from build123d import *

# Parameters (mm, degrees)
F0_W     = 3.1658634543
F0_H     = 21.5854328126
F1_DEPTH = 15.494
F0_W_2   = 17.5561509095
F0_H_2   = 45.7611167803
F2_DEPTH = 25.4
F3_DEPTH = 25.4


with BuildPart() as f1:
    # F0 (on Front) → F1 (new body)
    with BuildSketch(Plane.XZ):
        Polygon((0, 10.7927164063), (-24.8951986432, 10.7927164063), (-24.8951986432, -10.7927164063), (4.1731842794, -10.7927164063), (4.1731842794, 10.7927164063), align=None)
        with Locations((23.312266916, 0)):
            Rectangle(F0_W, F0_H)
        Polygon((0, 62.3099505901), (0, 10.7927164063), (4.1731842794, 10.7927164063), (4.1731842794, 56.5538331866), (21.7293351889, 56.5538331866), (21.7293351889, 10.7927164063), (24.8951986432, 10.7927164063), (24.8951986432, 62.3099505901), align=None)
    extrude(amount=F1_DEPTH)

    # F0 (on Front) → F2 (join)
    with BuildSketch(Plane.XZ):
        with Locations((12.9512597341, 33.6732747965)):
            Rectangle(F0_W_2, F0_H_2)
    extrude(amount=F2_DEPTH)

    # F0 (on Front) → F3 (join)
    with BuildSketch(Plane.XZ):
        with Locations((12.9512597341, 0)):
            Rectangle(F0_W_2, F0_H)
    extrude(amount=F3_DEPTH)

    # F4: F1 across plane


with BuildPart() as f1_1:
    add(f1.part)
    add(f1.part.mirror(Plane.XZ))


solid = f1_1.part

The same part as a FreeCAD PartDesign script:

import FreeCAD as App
import Part
import Sketcher
from FreeCAD import Vector
Q = App.Units.Quantity


def add_polygon(sketch, points):
    """Adds a closed chain of lines whose ends are joined by coincident constraints."""
    first, n = sketch.GeometryCount, len(points)
    for a, b in zip(points, points[1:] + points[:1]):
        sketch.addGeometry(Part.LineSegment(App.Vector(*a, 0), App.Vector(*b, 0)), False)
    for i in range(n):
        sketch.addConstraint(Sketcher.Constraint("Coincident", first + i, 2, first + (i + 1) % n, 1))

doc = App.newDocument("Part")
body = doc.addObject("PartDesign::Body", "Body")

sketch1 = body.newObject("Sketcher::SketchObject", "Sketch")
sketch1.AttachmentSupport = (doc.getObject("XZ_Plane"), [""])
sketch1.MapMode = "FlatFace"
add_polygon(sketch1, [(-24.9, 10.8), (-24.9, -10.8), (4.2, -10.8), (4.2, 56.6), (21.7, 56.6), (21.7, -10.8), (24.9, -10.8), (24.9, 62.3), (0, 62.3), (0, 10.8)])
sketch1.addConstraint([
    Sketcher.Constraint("Vertical", 0),
    Sketcher.Constraint("Horizontal", 1),
    Sketcher.Constraint("Vertical", 2),
    Sketcher.Constraint("Horizontal", 3),
    Sketcher.Constraint("Vertical", 4),
    Sketcher.Constraint("Horizontal", 5),
    Sketcher.Constraint("Vertical", 6),
    Sketcher.Constraint("Horizontal", 7),
    Sketcher.Constraint("Vertical", 8),
    Sketcher.Constraint("Horizontal", 9),
    Sketcher.Constraint("Symmetric", 5, 2, 9, 2, -1, 1),
    Sketcher.Constraint("PointOnObject", 7, 2, -2),
    Sketcher.Constraint("Horizontal", 1, 2, 4, 2),
    Sketcher.Constraint("DistanceX", 7, 2, 7, 1, 24.895199),
    Sketcher.Constraint("DistanceX", 3, 1, 3, 2, 17.556151),
    Sketcher.Constraint("DistanceY", 2, 1, 2, 2, 67.34655),
    Sketcher.Constraint("DistanceX", 1, 1, 1, 2, 29.068383),
    Sketcher.Constraint("DistanceY", 0, 2, 0, 1, 21.585433),
    Sketcher.Constraint("DistanceY", 6, 1, 6, 2, 73.102667),
])
pad1 = body.newObject("PartDesign::Pad", "Pad")
pad1.Profile = sketch1
pad1.Length = Q("0.61 in")

sketch2 = body.newObject("Sketcher::SketchObject", "Sketch001")
sketch2.AttachmentSupport = (doc.getObject("XZ_Plane"), [""])
sketch2.MapMode = "FlatFace"
add_polygon(sketch2, [(4, 57), (4, 11), (22, 11), (22, 57)])
sketch2.addConstraint([
    Sketcher.Constraint("Vertical", 0),
    Sketcher.Constraint("Horizontal", 1),
    Sketcher.Constraint("Vertical", 2),
    Sketcher.Constraint("Horizontal", 3),
    Sketcher.Constraint("DistanceX", 1, 1, 1, 2, 17.556151),
    Sketcher.Constraint("DistanceY", 0, 2, 0, 1, 45.761117),
    Sketcher.Constraint("DistanceX", -1, 1, 0, 2, 4.173184),
    Sketcher.Constraint("DistanceY", -1, 1, 0, 2, 10.792716),
])
pad2 = body.newObject("PartDesign::Pad", "Pad001")
pad2.Profile = sketch2
pad2.Length = Q("1 in")

sketch3 = body.newObject("Sketcher::SketchObject", "Sketch002")
sketch3.AttachmentSupport = (doc.getObject("XZ_Plane"), [""])
sketch3.MapMode = "FlatFace"
add_polygon(sketch3, [(4, 11), (4, -11), (22, -11), (22, 11)])
sketch3.addConstraint([
    Sketcher.Constraint("Vertical", 0),
    Sketcher.Constraint("Horizontal", 1),
    Sketcher.Constraint("Vertical", 2),
    Sketcher.Constraint("Horizontal", 3),
    Sketcher.Constraint("DistanceX", 1, 1, 1, 2, 17.556151),
    Sketcher.Constraint("DistanceY", 0, 2, 0, 1, 21.585433),
    Sketcher.Constraint("DistanceX", -1, 1, 0, 2, 4.173184),
    Sketcher.Constraint("DistanceY", 0, 2, -1, 1, 10.792716),
])
pad3 = body.newObject("PartDesign::Pad", "Pad002")
pad3.Profile = sketch3
pad3.Length = Q("1 in")
body2 = doc.addObject("PartDesign::Body", "Body001")
doc.recompute()

body2.BaseFeature = body
doc.recompute()

mirroring = doc.addObject("Part::Mirroring", "Mirroring")
mirroring.Source = body
mirroring.Base = Vector(0, 0, 0)
mirroring.Normal = Vector(0, -1, 0)
body3 = doc.addObject("PartDesign::Body", "Body002")
body3.BaseFeature = mirroring
boolean = body2.newObject("PartDesign::Boolean", "Boolean")
boolean.Type = "Fuse"
boolean.addObjects([body3])
doc.recompute()
mirroring.Visibility = False

doc.recompute()
